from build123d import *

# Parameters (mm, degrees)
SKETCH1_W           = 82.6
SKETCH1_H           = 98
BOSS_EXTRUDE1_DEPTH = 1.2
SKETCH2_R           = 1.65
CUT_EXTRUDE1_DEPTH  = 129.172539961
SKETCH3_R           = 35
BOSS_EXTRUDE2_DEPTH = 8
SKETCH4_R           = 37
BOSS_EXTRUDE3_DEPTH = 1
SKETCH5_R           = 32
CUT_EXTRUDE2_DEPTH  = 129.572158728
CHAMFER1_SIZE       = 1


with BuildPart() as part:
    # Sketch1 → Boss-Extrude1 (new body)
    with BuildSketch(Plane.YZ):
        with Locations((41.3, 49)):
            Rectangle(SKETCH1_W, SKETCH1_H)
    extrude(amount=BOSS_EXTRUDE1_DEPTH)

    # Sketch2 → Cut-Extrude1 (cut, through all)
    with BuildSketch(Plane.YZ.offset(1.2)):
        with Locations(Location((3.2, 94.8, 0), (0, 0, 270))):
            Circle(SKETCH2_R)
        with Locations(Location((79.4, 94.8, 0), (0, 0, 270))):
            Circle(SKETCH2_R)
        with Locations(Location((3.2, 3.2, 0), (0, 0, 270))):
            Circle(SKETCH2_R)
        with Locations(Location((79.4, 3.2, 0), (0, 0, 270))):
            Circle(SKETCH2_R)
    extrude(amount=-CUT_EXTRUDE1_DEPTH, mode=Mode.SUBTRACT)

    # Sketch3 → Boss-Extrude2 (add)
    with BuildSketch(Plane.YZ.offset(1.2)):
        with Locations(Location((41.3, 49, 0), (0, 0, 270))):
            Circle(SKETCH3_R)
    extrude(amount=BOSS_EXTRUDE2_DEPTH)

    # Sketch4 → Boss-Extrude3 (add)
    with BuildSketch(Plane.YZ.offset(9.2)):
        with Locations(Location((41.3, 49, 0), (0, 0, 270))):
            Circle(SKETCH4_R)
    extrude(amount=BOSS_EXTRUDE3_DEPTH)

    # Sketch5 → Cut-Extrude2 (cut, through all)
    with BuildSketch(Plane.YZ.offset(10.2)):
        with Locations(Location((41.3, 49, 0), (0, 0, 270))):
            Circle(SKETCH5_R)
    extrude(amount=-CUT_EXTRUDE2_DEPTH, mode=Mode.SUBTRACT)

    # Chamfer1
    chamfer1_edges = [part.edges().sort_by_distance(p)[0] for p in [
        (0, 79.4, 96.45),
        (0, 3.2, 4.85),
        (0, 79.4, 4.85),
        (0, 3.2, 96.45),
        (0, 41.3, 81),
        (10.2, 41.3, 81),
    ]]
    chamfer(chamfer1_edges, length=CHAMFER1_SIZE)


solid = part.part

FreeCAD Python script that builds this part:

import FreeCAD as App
import Part
import Sketcher
Q = App.Units.Quantity


def edges_at(feature, points):
    """Names of the edges that pass closest to the given points."""
    edges = feature.Shape.Edges
    near = lambda p: min(range(len(edges)), key=lambda i: edges[i].distToShape(Part.Vertex(*p))[0])
    return sorted({f"Edge{near(p) + 1}" for p in points})


def add_polygon(sketch, points):
    """Adds a closed chain of lines whose ends are joined by coincident constraints."""
    first, n = sketch.GeometryCount, len(points)
    for a, b in zip(points, points[1:] + points[:1]):
        sketch.addGeometry(Part.LineSegment(App.Vector(*a, 0), App.Vector(*b, 0)), False)
    for i in range(n):
        sketch.addConstraint(Sketcher.Constraint("Coincident", first + i, 2, first + (i + 1) % n, 1))

doc = App.newDocument("Part")
body = doc.addObject("PartDesign::Body", "Body")

sketch1 = body.newObject("Sketcher::SketchObject", "Sketch")
sketch1.AttachmentSupport = (doc.getObject("YZ_Plane"), [""])
sketch1.MapMode = "FlatFace"
add_polygon(sketch1, [(0, 98), (0, 0), (82.6, 0), (82.6, 98)])
sketch1.addConstraint([
    Sketcher.Constraint("Vertical", 0),
    Sketcher.Constraint("Horizontal", 1),
    Sketcher.Constraint("Vertical", 2),
    Sketcher.Constraint("Horizontal", 3),
    Sketcher.Constraint("Coincident", 0, 2, -1, 1),
    Sketcher.Constraint("DistanceY", 0, 2, 0, 1, Q("98 mm")),
    Sketcher.Constraint("DistanceX", 1, 1, 1, 2, Q("82.6 mm")),
])
pad1 = body.newObject("PartDesign::Pad", "Pad")
pad1.Profile = sketch1
pad1.Length = 1.2

sketch2 = body.newObject("Sketcher::SketchObject", "Sketch001")
sketch2.AttachmentSupport = (doc.getObject("YZ_Plane"), [""])
sketch2.MapMode = "FlatFace"
sketch2.AttachmentOffset = App.Placement(App.Vector(0, 0, 1.2), App.Rotation())
sketch2.addGeometry([
    Part.Circle(App.Vector(3.2, 94.8, 0), App.Vector(0, 0, 1), 1.65),
    Part.Circle(App.Vector(79.4, 94.8, 0), App.Vector(0, 0, 1), 1.65),
    Part.Circle(App.Vector(3.2, 3.2, 0), App.Vector(0, 0, 1), 1.65),
    Part.Circle(App.Vector(79.4, 3.2, 0), App.Vector(0, 0, 1), 1.65),
], False)
sketch2.addConstraint([
    Sketcher.Constraint("Equal", 0, 1),
    Sketcher.Constraint("Equal", 1, 2),
    Sketcher.Constraint("Equal", 2, 3),
    Sketcher.Constraint("Horizontal", 0, 3, 1, 3),
    Sketcher.Constraint("Horizontal", 2, 3, 3, 3),
    Sketcher.Constraint("Vertical", 0, 3, 2, 3),
    Sketcher.Constraint("Vertical", 1, 3, 3, 3),
    Sketcher.Constraint("Diameter", 0, Q("3.3 mm")),
    Sketcher.Constraint("DistanceX", -1, 1, 0, 3, Q("3.2 mm")),
    Sketcher.Constraint("DistanceY", -1, 1, 0, 3, Q("94.8 mm")),
    Sketcher.Constraint("DistanceX", -1, 1, 1, 3, Q("79.4 mm")),
    Sketcher.Constraint("DistanceY", -1, 1, 2, 3, Q("3.2 mm")),
])
pocket1 = body.newObject("PartDesign::Pocket", "Pocket")
pocket1.Profile = sketch2
pocket1.Type = "ThroughAll"

sketch3 = body.newObject("Sketcher::SketchObject", "Sketch002")
sketch3.AttachmentSupport = (doc.getObject("YZ_Plane"), [""])
sketch3.MapMode = "FlatFace"
sketch3.AttachmentOffset = App.Placement(App.Vector(0, 0, 1.2), App.Rotation())
sketch3.addGeometry(Part.Circle(App.Vector(41.3, 49, 0), App.Vector(0, 0, 1), 35), False)
sketch3.addConstraint([
    Sketcher.Constraint("Diameter", 0, Q("70 mm")),
    Sketcher.Constraint("DistanceY", -1, 1, 0, 3, Q("49 mm")),
    Sketcher.Constraint("DistanceX", -1, 1, 0, 3, Q("41.3 mm")),
])
pad2 = body.newObject("PartDesign::Pad", "Pad001")
pad2.Profile = sketch3
pad2.Length = 8

sketch4 = body.newObject("Sketcher::SketchObject", "Sketch003")
sketch4.AttachmentSupport = (doc.getObject("YZ_Plane"), [""])
sketch4.MapMode = "FlatFace"
sketch4.AttachmentOffset = App.Placement(App.Vector(0, 0, 9.2), App.Rotation())
sketch4.addGeometry(Part.Circle(App.Vector(41.3, 49, 0), App.Vector(0, 0, 1), 37), False)
sketch4.addConstraint([
    Sketcher.Constraint("Diameter", 0, Q("74 mm")),
    Sketcher.Constraint("DistanceY", -1, 1, 0, 3, Q("49 mm")),
    Sketcher.Constraint("DistanceX", -1, 1, 0, 3, Q("41.3 mm")),
])
pad3 = body.newObject("PartDesign::Pad", "Pad002")
pad3.Profile = sketch4
pad3.Length = 1

sketch5 = body.newObject("Sketcher::SketchObject", "Sketch004")
sketch5.AttachmentSupport = (doc.getObject("YZ_Plane"), [""])
sketch5.MapMode = "FlatFace"
sketch5.AttachmentOffset = App.Placement(App.Vector(0, 0, 10.2), App.Rotation())
sketch5.addGeometry(Part.Circle(App.Vector(41.3, 49, 0), App.Vector(0, 0, 1), 32), False)
sketch5.addConstraint([
    Sketcher.Constraint("Diameter", 0, Q("64 mm")),
    Sketcher.Constraint("DistanceY", -1, 1, 0, 3, Q("49 mm")),
    Sketcher.Constraint("DistanceX", -1, 1, 0, 3, Q("41.3 mm")),
])
pocket2 = body.newObject("PartDesign::Pocket", "Pocket001")
pocket2.Profile = sketch5
pocket2.Type = "ThroughAll"
doc.recompute()

chamfer = body.newObject("PartDesign::Chamfer", "Chamfer")
chamfer.Base = (pocket2, edges_at(pocket2, [
    (0, 79.4, 96.45),
    (0, 3.2, 4.85),
    (0, 79.4, 4.85),
    (0, 3.2, 96.45),
    (0, 41.3, 81),
    (10.2, 41.3, 81),
]))
chamfer.Size = 1

doc.recompute()
